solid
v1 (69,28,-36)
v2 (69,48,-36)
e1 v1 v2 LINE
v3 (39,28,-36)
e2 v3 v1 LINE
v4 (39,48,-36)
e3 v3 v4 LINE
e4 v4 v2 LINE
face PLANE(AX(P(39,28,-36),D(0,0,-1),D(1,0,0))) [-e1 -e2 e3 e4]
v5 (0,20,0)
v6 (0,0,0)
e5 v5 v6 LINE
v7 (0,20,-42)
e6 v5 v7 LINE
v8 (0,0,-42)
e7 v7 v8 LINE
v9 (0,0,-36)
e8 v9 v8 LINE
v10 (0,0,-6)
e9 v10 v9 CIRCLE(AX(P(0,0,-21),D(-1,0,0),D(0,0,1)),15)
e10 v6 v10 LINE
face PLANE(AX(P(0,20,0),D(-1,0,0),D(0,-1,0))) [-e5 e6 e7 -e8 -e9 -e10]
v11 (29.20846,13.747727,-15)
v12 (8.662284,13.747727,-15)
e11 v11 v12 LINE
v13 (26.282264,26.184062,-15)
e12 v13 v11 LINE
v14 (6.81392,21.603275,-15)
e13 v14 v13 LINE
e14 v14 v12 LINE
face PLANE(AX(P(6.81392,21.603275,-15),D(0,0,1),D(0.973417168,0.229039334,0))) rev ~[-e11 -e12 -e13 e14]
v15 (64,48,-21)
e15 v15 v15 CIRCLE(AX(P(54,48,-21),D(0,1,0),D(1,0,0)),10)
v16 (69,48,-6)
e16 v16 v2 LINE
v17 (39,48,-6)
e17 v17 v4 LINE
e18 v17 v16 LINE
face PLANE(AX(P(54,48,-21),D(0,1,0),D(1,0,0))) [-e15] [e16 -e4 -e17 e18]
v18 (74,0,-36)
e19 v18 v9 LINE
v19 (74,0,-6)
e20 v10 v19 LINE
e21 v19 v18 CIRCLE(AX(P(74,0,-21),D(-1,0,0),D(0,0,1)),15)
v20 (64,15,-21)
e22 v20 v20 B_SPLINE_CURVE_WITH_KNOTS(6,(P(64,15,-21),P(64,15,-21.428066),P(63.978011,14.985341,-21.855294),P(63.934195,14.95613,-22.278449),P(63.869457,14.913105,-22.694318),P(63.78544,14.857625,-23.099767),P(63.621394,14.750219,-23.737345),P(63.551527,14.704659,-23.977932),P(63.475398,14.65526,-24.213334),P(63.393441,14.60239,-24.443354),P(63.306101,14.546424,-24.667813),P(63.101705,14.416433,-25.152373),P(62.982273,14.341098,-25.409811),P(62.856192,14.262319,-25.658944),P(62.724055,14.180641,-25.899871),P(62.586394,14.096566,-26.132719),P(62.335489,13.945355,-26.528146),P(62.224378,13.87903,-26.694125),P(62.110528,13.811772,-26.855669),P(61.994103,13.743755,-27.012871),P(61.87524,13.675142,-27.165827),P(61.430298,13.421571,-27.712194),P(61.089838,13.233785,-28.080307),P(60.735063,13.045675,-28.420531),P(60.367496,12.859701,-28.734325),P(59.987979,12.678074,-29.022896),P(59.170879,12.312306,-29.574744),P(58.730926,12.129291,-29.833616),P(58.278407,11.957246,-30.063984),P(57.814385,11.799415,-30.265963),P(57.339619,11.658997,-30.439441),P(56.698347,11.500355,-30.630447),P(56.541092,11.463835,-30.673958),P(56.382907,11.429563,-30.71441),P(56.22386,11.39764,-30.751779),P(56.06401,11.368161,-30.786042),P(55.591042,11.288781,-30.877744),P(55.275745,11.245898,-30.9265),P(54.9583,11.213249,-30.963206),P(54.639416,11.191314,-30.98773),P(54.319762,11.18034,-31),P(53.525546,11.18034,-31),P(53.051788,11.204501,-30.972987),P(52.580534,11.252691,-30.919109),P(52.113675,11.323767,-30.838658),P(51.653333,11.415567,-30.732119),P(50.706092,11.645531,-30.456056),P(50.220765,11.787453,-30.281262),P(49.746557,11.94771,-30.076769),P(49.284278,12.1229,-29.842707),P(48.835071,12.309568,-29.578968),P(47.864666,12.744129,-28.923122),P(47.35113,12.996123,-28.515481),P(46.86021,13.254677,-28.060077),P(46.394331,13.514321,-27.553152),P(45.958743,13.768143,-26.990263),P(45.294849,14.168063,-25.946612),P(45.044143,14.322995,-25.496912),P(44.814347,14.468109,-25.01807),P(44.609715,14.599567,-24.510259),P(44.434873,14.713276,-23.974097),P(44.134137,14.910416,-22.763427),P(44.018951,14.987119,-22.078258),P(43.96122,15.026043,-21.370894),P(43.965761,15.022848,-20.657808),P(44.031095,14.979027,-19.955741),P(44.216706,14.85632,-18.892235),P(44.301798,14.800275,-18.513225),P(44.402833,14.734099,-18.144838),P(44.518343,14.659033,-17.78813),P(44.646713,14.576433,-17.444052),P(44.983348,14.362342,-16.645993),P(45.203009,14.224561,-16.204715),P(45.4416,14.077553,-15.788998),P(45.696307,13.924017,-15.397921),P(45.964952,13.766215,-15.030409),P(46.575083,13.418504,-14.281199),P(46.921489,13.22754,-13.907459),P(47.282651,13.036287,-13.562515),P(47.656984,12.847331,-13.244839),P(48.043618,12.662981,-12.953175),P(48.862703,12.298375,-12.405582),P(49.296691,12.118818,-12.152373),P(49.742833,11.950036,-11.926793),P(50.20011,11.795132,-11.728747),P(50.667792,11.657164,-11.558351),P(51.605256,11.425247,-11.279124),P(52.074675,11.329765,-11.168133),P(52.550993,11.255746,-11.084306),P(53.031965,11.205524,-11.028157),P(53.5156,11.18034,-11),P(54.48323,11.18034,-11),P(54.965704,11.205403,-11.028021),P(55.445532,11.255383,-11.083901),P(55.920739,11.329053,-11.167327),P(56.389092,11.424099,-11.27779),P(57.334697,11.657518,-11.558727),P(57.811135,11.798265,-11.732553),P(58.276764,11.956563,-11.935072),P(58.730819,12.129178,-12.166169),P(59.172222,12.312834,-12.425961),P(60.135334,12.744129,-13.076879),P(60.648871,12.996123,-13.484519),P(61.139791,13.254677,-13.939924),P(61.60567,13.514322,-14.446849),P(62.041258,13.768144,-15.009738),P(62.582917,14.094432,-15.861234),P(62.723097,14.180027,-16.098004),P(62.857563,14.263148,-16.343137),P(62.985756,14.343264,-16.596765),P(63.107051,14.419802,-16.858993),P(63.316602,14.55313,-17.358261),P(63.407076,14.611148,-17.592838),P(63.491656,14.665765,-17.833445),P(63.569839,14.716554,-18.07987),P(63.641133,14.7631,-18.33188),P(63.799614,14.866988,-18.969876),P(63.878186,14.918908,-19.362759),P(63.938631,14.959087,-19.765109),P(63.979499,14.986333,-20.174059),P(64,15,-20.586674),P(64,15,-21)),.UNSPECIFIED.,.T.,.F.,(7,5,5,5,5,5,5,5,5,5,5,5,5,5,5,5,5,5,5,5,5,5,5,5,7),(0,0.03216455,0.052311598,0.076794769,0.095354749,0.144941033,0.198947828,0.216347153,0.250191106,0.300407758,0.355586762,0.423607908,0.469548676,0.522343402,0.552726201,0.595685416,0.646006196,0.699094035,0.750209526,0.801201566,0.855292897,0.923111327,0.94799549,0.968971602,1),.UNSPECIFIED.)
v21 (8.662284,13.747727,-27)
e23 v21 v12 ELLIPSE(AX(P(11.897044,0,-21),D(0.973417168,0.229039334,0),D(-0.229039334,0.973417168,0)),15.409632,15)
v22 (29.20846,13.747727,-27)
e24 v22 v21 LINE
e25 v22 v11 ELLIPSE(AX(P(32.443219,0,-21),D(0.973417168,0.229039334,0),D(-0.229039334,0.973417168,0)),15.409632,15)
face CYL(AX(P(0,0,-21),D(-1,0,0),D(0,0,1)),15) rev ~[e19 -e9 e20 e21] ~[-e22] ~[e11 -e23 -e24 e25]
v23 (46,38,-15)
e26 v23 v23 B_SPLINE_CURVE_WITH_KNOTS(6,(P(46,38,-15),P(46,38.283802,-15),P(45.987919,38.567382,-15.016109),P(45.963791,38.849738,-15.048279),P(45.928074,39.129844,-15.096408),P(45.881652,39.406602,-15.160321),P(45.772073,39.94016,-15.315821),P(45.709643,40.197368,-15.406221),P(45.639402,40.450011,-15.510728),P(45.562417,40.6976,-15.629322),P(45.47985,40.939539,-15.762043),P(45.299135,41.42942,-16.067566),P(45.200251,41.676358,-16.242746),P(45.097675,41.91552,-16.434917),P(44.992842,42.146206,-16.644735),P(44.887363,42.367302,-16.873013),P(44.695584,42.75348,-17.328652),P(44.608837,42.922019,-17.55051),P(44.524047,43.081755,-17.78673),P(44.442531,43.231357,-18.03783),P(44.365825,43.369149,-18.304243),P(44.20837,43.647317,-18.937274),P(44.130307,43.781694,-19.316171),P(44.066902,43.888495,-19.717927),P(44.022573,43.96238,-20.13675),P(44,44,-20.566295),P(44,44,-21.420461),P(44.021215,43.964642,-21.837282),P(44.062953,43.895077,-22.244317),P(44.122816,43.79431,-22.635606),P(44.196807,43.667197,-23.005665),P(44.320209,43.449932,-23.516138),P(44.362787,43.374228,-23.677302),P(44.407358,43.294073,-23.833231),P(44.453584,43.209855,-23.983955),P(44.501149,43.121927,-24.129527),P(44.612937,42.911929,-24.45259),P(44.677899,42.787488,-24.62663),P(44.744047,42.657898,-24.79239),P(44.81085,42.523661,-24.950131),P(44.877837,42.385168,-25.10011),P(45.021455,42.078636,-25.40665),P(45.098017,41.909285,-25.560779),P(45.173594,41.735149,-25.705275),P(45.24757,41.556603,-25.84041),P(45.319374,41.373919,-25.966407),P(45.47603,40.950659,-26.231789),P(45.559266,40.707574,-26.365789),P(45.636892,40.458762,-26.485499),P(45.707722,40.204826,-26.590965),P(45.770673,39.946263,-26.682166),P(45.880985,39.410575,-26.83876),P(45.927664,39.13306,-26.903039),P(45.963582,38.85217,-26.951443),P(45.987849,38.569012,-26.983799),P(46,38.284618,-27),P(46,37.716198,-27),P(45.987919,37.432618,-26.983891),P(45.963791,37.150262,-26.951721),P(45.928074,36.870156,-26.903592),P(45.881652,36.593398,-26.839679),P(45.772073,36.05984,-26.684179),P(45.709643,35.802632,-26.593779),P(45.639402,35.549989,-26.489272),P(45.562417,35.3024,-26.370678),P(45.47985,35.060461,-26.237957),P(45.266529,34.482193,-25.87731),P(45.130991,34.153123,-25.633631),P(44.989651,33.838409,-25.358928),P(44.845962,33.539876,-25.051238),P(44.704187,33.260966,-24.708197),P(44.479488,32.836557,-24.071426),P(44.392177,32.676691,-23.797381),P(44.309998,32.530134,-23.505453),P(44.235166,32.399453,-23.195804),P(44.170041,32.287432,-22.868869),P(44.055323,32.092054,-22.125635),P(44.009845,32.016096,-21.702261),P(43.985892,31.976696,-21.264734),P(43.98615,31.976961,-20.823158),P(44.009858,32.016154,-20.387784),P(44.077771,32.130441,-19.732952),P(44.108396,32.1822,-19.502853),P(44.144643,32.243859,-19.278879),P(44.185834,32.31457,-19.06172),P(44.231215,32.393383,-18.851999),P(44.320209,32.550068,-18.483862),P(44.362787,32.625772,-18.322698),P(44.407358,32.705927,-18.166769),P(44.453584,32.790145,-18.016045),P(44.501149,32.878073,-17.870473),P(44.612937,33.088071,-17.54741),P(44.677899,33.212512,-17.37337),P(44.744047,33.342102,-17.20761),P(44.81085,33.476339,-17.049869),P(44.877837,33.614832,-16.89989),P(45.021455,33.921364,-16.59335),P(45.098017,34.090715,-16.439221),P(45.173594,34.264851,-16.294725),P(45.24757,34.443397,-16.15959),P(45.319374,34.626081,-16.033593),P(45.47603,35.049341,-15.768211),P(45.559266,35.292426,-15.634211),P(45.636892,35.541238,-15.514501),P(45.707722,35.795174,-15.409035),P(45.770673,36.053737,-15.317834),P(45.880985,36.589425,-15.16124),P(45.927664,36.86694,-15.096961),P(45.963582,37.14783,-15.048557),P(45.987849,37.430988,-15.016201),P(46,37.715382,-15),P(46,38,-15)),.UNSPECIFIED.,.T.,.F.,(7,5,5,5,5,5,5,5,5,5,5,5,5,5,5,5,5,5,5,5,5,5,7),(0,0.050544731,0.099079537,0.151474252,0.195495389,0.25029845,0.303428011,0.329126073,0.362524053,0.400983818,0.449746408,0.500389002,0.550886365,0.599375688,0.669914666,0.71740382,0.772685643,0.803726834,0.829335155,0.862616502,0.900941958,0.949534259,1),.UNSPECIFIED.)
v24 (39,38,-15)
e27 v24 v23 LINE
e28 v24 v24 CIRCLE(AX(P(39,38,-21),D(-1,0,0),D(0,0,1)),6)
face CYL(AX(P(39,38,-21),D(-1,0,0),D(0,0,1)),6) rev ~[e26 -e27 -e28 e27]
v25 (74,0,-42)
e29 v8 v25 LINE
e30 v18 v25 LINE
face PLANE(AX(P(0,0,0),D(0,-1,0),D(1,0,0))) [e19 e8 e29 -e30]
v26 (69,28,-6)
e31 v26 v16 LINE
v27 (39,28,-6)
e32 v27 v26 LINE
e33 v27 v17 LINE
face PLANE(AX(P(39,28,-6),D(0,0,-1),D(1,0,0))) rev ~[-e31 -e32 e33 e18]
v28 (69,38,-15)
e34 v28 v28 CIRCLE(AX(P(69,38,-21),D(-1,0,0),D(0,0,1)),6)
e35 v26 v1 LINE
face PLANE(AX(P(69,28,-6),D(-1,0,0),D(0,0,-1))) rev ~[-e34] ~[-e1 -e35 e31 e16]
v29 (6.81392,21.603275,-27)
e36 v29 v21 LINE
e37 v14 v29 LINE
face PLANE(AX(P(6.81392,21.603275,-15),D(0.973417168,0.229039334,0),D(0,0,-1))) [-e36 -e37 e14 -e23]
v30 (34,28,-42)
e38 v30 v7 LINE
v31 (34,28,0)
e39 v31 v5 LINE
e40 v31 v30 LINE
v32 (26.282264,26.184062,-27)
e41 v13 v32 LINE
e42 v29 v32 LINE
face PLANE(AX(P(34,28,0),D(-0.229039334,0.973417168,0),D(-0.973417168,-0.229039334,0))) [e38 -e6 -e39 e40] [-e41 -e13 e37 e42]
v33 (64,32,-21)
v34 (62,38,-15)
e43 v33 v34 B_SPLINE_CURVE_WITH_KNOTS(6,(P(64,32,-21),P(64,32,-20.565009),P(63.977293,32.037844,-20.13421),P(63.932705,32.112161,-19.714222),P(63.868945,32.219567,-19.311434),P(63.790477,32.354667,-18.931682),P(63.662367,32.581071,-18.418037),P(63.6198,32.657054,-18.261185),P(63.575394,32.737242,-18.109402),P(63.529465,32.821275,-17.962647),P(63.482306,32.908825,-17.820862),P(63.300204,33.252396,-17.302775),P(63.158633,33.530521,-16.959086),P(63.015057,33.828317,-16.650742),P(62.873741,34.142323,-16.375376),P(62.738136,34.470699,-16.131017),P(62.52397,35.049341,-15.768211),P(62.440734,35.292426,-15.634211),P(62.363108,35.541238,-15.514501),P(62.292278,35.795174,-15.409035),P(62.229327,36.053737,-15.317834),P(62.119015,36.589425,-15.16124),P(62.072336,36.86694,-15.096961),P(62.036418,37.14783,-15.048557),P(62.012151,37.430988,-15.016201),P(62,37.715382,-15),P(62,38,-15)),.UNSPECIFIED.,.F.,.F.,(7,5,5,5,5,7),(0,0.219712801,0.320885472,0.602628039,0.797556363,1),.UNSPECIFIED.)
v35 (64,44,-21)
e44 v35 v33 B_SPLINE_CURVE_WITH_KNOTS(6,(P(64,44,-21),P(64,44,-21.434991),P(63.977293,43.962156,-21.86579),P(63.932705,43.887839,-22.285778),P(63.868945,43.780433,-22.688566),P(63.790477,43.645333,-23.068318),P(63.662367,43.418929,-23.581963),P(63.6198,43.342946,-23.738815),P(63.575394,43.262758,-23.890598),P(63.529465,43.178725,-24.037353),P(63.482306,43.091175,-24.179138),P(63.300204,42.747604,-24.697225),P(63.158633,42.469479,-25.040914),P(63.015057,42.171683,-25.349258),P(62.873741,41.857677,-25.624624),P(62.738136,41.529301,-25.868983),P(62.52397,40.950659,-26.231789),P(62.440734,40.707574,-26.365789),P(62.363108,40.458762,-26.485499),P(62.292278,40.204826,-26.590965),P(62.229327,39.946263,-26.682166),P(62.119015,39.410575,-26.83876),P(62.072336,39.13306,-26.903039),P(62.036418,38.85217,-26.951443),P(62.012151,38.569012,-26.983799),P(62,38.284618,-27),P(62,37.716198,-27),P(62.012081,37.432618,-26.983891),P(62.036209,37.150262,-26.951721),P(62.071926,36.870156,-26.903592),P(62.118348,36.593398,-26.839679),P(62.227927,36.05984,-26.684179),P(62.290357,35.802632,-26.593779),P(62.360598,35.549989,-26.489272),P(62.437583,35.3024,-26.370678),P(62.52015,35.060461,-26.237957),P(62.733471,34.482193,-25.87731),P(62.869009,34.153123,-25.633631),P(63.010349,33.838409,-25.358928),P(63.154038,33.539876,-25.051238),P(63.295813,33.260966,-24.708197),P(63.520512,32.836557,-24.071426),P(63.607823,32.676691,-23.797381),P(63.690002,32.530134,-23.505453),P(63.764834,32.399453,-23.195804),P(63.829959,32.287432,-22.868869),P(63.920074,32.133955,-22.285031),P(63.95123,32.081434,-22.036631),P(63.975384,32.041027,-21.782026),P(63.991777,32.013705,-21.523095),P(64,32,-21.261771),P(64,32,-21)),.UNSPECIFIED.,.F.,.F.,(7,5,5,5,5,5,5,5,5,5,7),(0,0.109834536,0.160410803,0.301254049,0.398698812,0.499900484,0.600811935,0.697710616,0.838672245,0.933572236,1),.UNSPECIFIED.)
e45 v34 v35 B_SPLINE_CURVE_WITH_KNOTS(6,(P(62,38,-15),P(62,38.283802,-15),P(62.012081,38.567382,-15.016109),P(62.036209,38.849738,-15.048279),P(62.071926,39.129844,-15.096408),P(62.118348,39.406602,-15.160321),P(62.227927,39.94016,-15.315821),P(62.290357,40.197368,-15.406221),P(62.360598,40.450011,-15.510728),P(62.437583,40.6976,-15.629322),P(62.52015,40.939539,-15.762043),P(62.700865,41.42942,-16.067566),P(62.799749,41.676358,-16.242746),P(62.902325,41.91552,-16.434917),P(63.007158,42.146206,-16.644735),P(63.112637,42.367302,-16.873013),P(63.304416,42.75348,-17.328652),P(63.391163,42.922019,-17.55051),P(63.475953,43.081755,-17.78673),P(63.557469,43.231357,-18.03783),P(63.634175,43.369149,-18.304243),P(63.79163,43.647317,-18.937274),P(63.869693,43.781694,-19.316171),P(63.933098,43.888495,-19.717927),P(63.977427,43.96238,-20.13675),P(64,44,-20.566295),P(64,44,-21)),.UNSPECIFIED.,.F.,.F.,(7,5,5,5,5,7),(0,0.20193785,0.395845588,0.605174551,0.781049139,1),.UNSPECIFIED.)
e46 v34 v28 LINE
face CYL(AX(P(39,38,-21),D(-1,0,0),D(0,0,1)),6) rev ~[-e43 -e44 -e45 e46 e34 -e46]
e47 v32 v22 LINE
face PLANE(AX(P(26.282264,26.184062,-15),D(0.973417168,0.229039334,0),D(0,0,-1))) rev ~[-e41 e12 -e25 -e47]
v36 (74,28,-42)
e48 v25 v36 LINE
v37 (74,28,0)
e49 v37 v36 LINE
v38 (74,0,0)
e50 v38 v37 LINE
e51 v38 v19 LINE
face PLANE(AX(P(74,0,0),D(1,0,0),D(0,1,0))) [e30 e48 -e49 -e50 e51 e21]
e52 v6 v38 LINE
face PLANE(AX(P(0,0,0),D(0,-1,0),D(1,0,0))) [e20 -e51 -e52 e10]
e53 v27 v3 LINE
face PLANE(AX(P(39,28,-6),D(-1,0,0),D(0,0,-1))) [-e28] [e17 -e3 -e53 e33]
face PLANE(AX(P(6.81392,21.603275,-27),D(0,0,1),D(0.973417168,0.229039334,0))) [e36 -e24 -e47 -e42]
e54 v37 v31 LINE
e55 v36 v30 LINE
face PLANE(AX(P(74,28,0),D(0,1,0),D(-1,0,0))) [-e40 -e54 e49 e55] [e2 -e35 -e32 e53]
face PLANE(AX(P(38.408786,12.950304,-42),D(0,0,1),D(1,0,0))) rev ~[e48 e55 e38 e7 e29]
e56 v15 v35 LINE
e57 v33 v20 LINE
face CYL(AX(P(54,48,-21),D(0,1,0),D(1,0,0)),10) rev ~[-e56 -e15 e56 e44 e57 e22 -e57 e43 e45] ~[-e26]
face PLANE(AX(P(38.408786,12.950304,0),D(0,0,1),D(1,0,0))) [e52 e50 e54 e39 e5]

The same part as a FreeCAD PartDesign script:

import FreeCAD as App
import Part
import Sketcher
Q = App.Units.Quantity

doc = App.newDocument("Part")
params = doc.addObject("Spreadsheet::Sheet", "Params")
for row, (alias, value) in enumerate([
    ("sketch1_width", "74 mm"),
    ("sketch1_width2", "40 mm"),
    ("sketch1_height", "28 mm"),
    ("sketch1_height2", "20 mm"),
    ("pad1_length", "42 mm"),
    ("sketch2_diameter", "30 mm"),
    ("pocket1_length", "74 mm"),
    ("sketch3_width", "20 mm"),
    ("sketch3_height", "12 mm"),
    ("pocket2_length", "74 mm"),
    ("sketch4_width", "30 mm"),
    ("pad2_length", "20 mm"),
    ("sketch5_diameter", "12 mm"),
    ("pocket3_length", "30 mm"),
    ("sketch6_diameter", "20 mm"),
    ("pocket4_length", "40 mm"),
], start=1):
    params.set(f"A{row}", alias)
    params.set(f"B{row}", "=" + value)
    params.setAlias(f"B{row}", alias)

body = doc.addObject("PartDesign::Body", "Body")

# Sketch on XY plane
sketch1 = body.newObject("Sketcher::SketchObject", "Sketch")
sketch1.AttachmentSupport = (doc.getObject("XY_Plane"), [""])
sketch1.MapMode = "FlatFace"
sketch1.addGeometry(Part.LineSegment(App.Vector(0, 0, 0), App.Vector(74, 0, 0)), False)
sketch1.addGeometry(Part.LineSegment(App.Vector(74, 0, 0), App.Vector(74, 28, 0)), False)
sketch1.addGeometry(Part.LineSegment(App.Vector(74, 28, 0), App.Vector(34, 28, 0)), False)
sketch1.addGeometry(Part.LineSegment(App.Vector(34, 28, 0), App.Vector(0, 20, 0)), False)
sketch1.addGeometry(Part.LineSegment(App.Vector(0, 20, 0), App.Vector(0, 0, 0)), False)
sketch1.addConstraint(Sketcher.Constraint("Coincident", 0, 2, 1, 1))
sketch1.addConstraint(Sketcher.Constraint("Coincident", 1, 2, 2, 1))
sketch1.addConstraint(Sketcher.Constraint("Coincident", 2, 2, 3, 1))
sketch1.addConstraint(Sketcher.Constraint("Coincident", 3, 2, 4, 1))
sketch1.addConstraint(Sketcher.Constraint("Coincident", 4, 2, 0, 1))
sketch1.addConstraint(Sketcher.Constraint("Horizontal", 0))
sketch1.addConstraint(Sketcher.Constraint("Vertical", 1))
sketch1.addConstraint(Sketcher.Constraint("Horizontal", 2))
sketch1.addConstraint(Sketcher.Constraint("Vertical", 4))
sketch1.addConstraint(Sketcher.Constraint("Coincident", 4, 2, -1, 1))
sketch1.addConstraint(Sketcher.Constraint("DistanceX", 0, 1, 0, 2, Q("74 mm")))
sketch1.addConstraint(Sketcher.Constraint("DistanceX", 2, 2, 2, 1, Q("40 mm")))
sketch1.addConstraint(Sketcher.Constraint("DistanceY", 1, 1, 1, 2, Q("28 mm")))
sketch1.addConstraint(Sketcher.Constraint("DistanceY", 4, 2, 4, 1, Q("20 mm")))
sketch1.setExpression("Constraints[10]", "Params.sketch1_width")
sketch1.setExpression("Constraints[11]", "Params.sketch1_width2")
sketch1.setExpression("Constraints[12]", "Params.sketch1_height")
sketch1.setExpression("Constraints[13]", "Params.sketch1_height2")
pad1 = body.newObject("PartDesign::Pad", "Pad")
pad1.Profile = sketch1
pad1.setExpression("Length", "Params.pad1_length")
pad1.Reversed = True

# Sketch on YZ plane
sketch2 = body.newObject("Sketcher::SketchObject", "Sketch001")
sketch2.AttachmentSupport = (doc.getObject("YZ_Plane"), [""])
sketch2.MapMode = "FlatFace"
sketch2.addGeometry(Part.Circle(App.Vector(0, -21, 0), App.Vector(0, 0, 1), 15), False)
sketch2.addConstraint(Sketcher.Constraint("PointOnObject", 0, 3, -2))
sketch2.addConstraint(Sketcher.Constraint("Diameter", 0, Q("30 mm")))
sketch2.addConstraint(Sketcher.Constraint("DistanceY", 0, 3, -1, 1, Q("21 mm")))
sketch2.setExpression("Constraints[1]", "Params.sketch2_diameter")
pocket1 = body.newObject("PartDesign::Pocket", "Pocket")
pocket1.Profile = sketch2
pocket1.setExpression("Length", "Params.pocket1_length")
pocket1.Reversed = True

# Sketch on an angled plane
sketch3 = body.newObject("Sketcher::SketchObject", "Sketch002")
sketch3.Placement = App.Placement(App.Vector(-4.459016, 18.95082, 0), App.Rotation(App.Vector(0.973417168, 0.229039334, 0), App.Vector(0, 0, -0.999999999), App.Vector(-0.229039334, 0.973417168, 0), "ZXY"))
sketch3.addGeometry(Part.LineSegment(App.Vector(12, 27, 0), App.Vector(12, 15, 0)), False)
sketch3.addGeometry(Part.LineSegment(App.Vector(12, 15, 0), App.Vector(32, 15, 0)), False)
sketch3.addGeometry(Part.LineSegment(App.Vector(32, 15, 0), App.Vector(32, 27, 0)), False)
sketch3.addGeometry(Part.LineSegment(App.Vector(32, 27, 0), App.Vector(12, 27, 0)), False)
sketch3.addConstraint(Sketcher.Constraint("Coincident", 0, 2, 1, 1))
sketch3.addConstraint(Sketcher.Constraint("Coincident", 1, 2, 2, 1))
sketch3.addConstraint(Sketcher.Constraint("Coincident", 2, 2, 3, 1))
sketch3.addConstraint(Sketcher.Constraint("Coincident", 3, 2, 0, 1))
sketch3.addConstraint(Sketcher.Constraint("Vertical", 0))
sketch3.addConstraint(Sketcher.Constraint("Horizontal", 1))
sketch3.addConstraint(Sketcher.Constraint("Vertical", 2))
sketch3.addConstraint(Sketcher.Constraint("Horizontal", 3))
sketch3.addConstraint(Sketcher.Constraint("DistanceX", 1, 1, 1, 2, Q("20 mm")))
sketch3.addConstraint(Sketcher.Constraint("DistanceY", 0, 2, 0, 1, Q("12 mm")))
sketch3.addConstraint(Sketcher.Constraint("DistanceY", -1, 1, 0, 2, Q("15 mm")))
sketch3.addConstraint(Sketcher.Constraint("DistanceX", -1, 1, 0, 2, Q("11.580787 mm")))
sketch3.setExpression("Constraints[8]", "Params.sketch3_width")
sketch3.setExpression("Constraints[9]", "Params.sketch3_height")
pocket2 = body.newObject("PartDesign::Pocket", "Pocket001")
pocket2.Profile = sketch3
pocket2.setExpression("Length", "Params.pocket2_length")

# Sketch on XZ plane
sketch4 = body.newObject("Sketcher::SketchObject", "Sketch003")
sketch4.AttachmentSupport = (doc.getObject("XZ_Plane"), [""])
sketch4.MapMode = "FlatFace"
sketch4.AttachmentOffset = App.Placement(App.Vector(0, 0, -28), App.Rotation())
sketch4.addGeometry(Part.LineSegment(App.Vector(39, -36, 0), App.Vector(39, -6, 0)), False)
sketch4.addGeometry(Part.LineSegment(App.Vector(39, -6, 0), App.Vector(69, -6, 0)), False)
sketch4.addGeometry(Part.LineSegment(App.Vector(69, -6, 0), App.Vector(69, -36, 0)), False)
sketch4.addGeometry(Part.LineSegment(App.Vector(69, -36, 0), App.Vector(39, -36, 0)), False)
sketch4.addConstraint(Sketcher.Constraint("Coincident", 0, 2, 1, 1))
sketch4.addConstraint(Sketcher.Constraint("Coincident", 1, 2, 2, 1))
sketch4.addConstraint(Sketcher.Constraint("Coincident", 2, 2, 3, 1))
sketch4.addConstraint(Sketcher.Constraint("Coincident", 3, 2, 0, 1))
sketch4.addConstraint(Sketcher.Constraint("Vertical", 0))
sketch4.addConstraint(Sketcher.Constraint("Horizontal", 1))
sketch4.addConstraint(Sketcher.Constraint("Vertical", 2))
sketch4.addConstraint(Sketcher.Constraint("Horizontal", 3))
sketch4.addConstraint(Sketcher.Constraint("Equal", 3, 0))
sketch4.addConstraint(Sketcher.Constraint("DistanceX", 1, 1, 1, 2, Q("30 mm")))
sketch4.addConstraint(Sketcher.Constraint("DistanceX", -1, 1, 0, 2, Q("39 mm")))
sketch4.addConstraint(Sketcher.Constraint("DistanceY", 0, 2, -1, 1, Q("6 mm")))
sketch4.setExpression("Constraints[9]", "Params.sketch4_width")
pad2 = body.newObject("PartDesign::Pad", "Pad001")
pad2.Profile = sketch4
pad2.setExpression("Length", "Params.pad2_length")
pad2.Reversed = True

# Sketch on YZ plane
sketch5 = body.newObject("Sketcher::SketchObject", "Sketch004")
sketch5.AttachmentSupport = (doc.getObject("YZ_Plane"), [""])
sketch5.MapMode = "FlatFace"
sketch5.AttachmentOffset = App.Placement(App.Vector(0, 0, 39), App.Rotation())
sketch5.addGeometry(Part.Circle(App.Vector(38, -21, 0), App.Vector(0, 0, 1), 6), False)
sketch5.addConstraint(Sketcher.Constraint("Diameter", 0, Q("12 mm")))
sketch5.addConstraint(Sketcher.Constraint("DistanceX", -1, 1, 0, 3, Q("38 mm")))
sketch5.addConstraint(Sketcher.Constraint("DistanceY", 0, 3, -1, 1, Q("21 mm")))
sketch5.setExpression("Constraints[0]", "Params.sketch5_diameter")
pocket3 = body.newObject("PartDesign::Pocket", "Pocket002")
pocket3.Profile = sketch5
pocket3.setExpression("Length", "Params.pocket3_length")
pocket3.Reversed = True

# Sketch on XZ plane
sketch6 = body.newObject("Sketcher::SketchObject", "Sketch005")
sketch6.AttachmentSupport = (doc.getObject("XZ_Plane"), [""])
sketch6.MapMode = "FlatFace"
sketch6.AttachmentOffset = App.Placement(App.Vector(0, 0, -48), App.Rotation())
sketch6.addGeometry(Part.Circle(App.Vector(54, -21, 0), App.Vector(0, 0, 1), 10), False)
sketch6.addConstraint(Sketcher.Constraint("Diameter", 0, Q("20 mm")))
sketch6.addConstraint(Sketcher.Constraint("DistanceX", -1, 1, 0, 3, Q("54 mm")))
sketch6.addConstraint(Sketcher.Constraint("DistanceY", 0, 3, -1, 1, Q("21 mm")))
sketch6.setExpression("Constraints[0]", "Params.sketch6_diameter")
pocket4 = body.newObject("PartDesign::Pocket", "Pocket003")
pocket4.Profile = sketch6
pocket4.setExpression("Length", "Params.pocket4_length")
pocket4.Reversed = True

doc.recompute()
